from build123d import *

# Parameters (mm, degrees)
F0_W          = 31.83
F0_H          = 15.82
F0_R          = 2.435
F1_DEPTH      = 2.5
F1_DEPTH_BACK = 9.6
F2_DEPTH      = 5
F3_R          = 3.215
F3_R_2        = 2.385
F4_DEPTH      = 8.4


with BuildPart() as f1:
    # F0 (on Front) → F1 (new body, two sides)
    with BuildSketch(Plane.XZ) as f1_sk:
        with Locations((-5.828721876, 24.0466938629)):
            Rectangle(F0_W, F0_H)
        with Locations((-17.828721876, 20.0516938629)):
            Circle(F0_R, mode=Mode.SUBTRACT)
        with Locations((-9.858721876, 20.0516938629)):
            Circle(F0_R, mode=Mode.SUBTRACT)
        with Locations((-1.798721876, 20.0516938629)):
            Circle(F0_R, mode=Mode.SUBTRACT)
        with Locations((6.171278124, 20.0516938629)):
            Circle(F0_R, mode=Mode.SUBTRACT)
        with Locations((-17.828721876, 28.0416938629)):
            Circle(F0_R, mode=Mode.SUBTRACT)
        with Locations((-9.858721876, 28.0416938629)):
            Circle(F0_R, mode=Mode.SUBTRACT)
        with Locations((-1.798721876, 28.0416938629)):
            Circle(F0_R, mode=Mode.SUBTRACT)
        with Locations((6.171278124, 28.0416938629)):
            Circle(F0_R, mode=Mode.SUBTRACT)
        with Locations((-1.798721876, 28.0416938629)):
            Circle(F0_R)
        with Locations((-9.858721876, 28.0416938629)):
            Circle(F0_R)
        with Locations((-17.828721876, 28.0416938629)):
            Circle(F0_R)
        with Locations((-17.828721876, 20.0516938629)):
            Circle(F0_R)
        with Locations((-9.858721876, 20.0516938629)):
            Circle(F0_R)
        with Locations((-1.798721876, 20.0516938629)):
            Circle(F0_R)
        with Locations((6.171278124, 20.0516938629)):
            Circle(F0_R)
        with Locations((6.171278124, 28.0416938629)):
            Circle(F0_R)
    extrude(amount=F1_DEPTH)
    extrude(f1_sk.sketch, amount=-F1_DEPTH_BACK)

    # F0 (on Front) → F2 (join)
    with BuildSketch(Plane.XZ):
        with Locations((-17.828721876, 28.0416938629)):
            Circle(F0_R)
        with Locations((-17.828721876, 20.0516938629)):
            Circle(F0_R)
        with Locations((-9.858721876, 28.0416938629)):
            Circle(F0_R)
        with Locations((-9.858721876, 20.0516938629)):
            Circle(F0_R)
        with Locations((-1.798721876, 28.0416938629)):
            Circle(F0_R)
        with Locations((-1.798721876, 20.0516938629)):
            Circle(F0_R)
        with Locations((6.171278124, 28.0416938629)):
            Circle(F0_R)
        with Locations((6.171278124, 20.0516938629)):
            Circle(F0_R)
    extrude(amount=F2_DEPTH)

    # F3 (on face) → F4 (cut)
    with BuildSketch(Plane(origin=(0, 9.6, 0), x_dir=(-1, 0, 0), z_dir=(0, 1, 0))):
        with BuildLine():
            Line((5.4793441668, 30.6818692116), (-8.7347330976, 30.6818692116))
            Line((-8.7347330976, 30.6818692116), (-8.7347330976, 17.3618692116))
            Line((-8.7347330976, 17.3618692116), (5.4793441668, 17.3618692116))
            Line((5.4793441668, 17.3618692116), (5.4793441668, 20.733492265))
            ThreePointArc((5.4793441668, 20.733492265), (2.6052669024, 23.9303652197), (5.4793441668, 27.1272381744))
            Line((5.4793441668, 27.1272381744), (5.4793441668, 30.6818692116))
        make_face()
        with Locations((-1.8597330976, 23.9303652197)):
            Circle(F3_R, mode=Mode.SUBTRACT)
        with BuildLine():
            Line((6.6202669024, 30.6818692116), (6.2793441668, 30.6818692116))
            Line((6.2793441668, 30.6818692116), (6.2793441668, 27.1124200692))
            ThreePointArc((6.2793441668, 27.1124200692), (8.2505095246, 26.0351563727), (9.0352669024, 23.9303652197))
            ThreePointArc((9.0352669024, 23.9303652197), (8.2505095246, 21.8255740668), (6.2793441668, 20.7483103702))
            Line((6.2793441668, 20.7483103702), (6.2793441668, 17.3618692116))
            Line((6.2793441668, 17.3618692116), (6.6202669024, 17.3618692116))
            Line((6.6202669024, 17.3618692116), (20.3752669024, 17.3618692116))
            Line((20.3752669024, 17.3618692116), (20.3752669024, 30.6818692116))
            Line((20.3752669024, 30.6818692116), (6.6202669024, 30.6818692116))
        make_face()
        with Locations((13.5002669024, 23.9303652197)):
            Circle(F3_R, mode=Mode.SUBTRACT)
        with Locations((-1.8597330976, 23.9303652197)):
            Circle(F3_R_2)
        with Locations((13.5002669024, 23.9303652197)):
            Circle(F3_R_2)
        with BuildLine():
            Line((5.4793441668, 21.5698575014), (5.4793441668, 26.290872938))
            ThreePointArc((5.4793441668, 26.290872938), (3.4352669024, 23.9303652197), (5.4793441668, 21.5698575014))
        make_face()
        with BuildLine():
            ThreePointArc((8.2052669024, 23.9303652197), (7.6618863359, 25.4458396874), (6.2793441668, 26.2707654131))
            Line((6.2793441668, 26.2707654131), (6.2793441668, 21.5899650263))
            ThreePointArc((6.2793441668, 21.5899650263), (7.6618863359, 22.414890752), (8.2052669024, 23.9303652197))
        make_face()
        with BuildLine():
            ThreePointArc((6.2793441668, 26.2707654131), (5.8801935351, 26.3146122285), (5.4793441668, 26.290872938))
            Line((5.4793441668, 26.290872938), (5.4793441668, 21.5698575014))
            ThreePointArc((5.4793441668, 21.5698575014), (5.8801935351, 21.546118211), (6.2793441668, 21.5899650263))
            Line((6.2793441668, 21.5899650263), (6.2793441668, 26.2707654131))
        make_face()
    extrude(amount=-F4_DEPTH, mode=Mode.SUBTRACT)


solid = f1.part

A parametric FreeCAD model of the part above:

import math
import FreeCAD as App
import Part
import Sketcher
from FreeCAD import Vector

doc = App.newDocument("Part")
params = doc.addObject("Spreadsheet::Sheet", "Params")
for row, (alias, value) in enumerate([
    ("sketch1_width", "31.83 mm"),
    ("sketch1_height", "15.82 mm"),
    ("pad1_length", "2.5 mm"),
    ("pad1_length2", "9.6 mm"),
    ("sketch2_diameter", "4.87 mm"),
    ("pad2_length", "5 mm"),
    ("sketch3_diameter", "6.43 mm"),
    ("sketch3_diameter2", "4.77 mm"),
    ("sketch3_height", "13.32 mm"),
    ("pocket1_length", "8.4 mm"),
], start=1):
    params.set(f"A{row}", alias)
    params.set(f"B{row}", "=" + value)
    params.setAlias(f"B{row}", alias)

body = doc.addObject("PartDesign::Body", "Body")

sketch1 = doc.addObject("Sketcher::SketchObject", "Sketch")
body.addObject(sketch1)
sketch1.AttachmentSupport = (doc.XZ_Plane, [""])
sketch1.MapMode = "FlatFace"
sketch1.addGeometry([
    Part.LineSegment(Vector(-22, 32, 0), Vector(-22, 16, 0)),
    Part.LineSegment(Vector(-22, 16, 0), Vector(10, 16, 0)),
    Part.LineSegment(Vector(10, 16, 0), Vector(10, 32, 0)),
    Part.LineSegment(Vector(10, 32, 0), Vector(-22, 32, 0)),
], False)
sketch1.addConstraint([
    Sketcher.Constraint("Coincident", 0, 2, 1, 1),
    Sketcher.Constraint("Coincident", 1, 2, 2, 1),
    Sketcher.Constraint("Coincident", 2, 2, 3, 1),
    Sketcher.Constraint("Coincident", 3, 2, 0, 1),
    Sketcher.Constraint("Vertical", 0),
    Sketcher.Constraint("Horizontal", 1),
    Sketcher.Constraint("Vertical", 2),
    Sketcher.Constraint("Horizontal", 3),
    Sketcher.Constraint("DistanceX", 1, 1, 1, 2, 31.83),
    Sketcher.Constraint("DistanceY", 0, 2, 0, 1, 15.82),
    Sketcher.Constraint("DistanceX", 0, 2, -1, 1, 21.743722),
    Sketcher.Constraint("DistanceY", -1, 1, 0, 2, 16.136694),
])
sketch1.setExpression("Constraints[8]", "Params.sketch1_width")
sketch1.setExpression("Constraints[9]", "Params.sketch1_height")
pad1 = doc.addObject("PartDesign::Pad", "Pad")
body.addObject(pad1)
pad1.Profile = sketch1
pad1.Type = "TwoLengths"
pad1.setExpression("Length", "Params.pad1_length")
pad1.setExpression("Length2", "Params.pad1_length2")

sketch2 = doc.addObject("Sketcher::SketchObject", "Sketch001")
body.addObject(sketch2)
sketch2.AttachmentSupport = (doc.XZ_Plane, [""])
sketch2.MapMode = "FlatFace"
sketch2.addGeometry([
    Part.Circle(Vector(-17.8, 28, 0), Vector(0, 0, 1), 2.4),
    Part.Circle(Vector(-17.8, 20.1, 0), Vector(0, 0, 1), 2.4),
    Part.Circle(Vector(-9.9, 28, 0), Vector(0, 0, 1), 2.4),
    Part.Circle(Vector(-9.9, 20.1, 0), Vector(0, 0, 1), 2.4),
    Part.Circle(Vector(-1.8, 28, 0), Vector(0, 0, 1), 2.4),
    Part.Circle(Vector(-1.8, 20.1, 0), Vector(0, 0, 1), 2.4),
    Part.Circle(Vector(6.2, 28, 0), Vector(0, 0, 1), 2.4),
    Part.Circle(Vector(6.2, 20.1, 0), Vector(0, 0, 1), 2.4),
], False)
sketch2.addConstraint([
    Sketcher.Constraint("Equal", 0, 1),
    Sketcher.Constraint("Equal", 1, 2),
    Sketcher.Constraint("Equal", 2, 3),
    Sketcher.Constraint("Equal", 3, 4),
    Sketcher.Constraint("Equal", 4, 5),
    Sketcher.Constraint("Equal", 5, 6),
    Sketcher.Constraint("Equal", 6, 7),
    Sketcher.Constraint("Horizontal", 0, 3, 2, 3),
    Sketcher.Constraint("Horizontal", 1, 3, 3, 3),
    Sketcher.Constraint("Horizontal", 2, 3, 4, 3),
    Sketcher.Constraint("Horizontal", 3, 3, 5, 3),
    Sketcher.Constraint("Horizontal", 4, 3, 6, 3),
    Sketcher.Constraint("Horizontal", 5, 3, 7, 3),
    Sketcher.Constraint("Vertical", 0, 3, 1, 3),
    Sketcher.Constraint("Vertical", 2, 3, 3, 3),
    Sketcher.Constraint("Vertical", 4, 3, 5, 3),
    Sketcher.Constraint("Vertical", 6, 3, 7, 3),
    Sketcher.Constraint("Diameter", 0, 4.87),
    Sketcher.Constraint("DistanceX", 0, 3, 6, 3, 24.0),
    Sketcher.Constraint("DistanceY", 1, 3, 0, 3, 7.99),
    Sketcher.Constraint("DistanceX", 0, 3, 2, 3, 7.97),
    Sketcher.Constraint("DistanceX", 2, 3, 4, 3, 8.06),
    Sketcher.Constraint("DistanceX", 0, 3, -1, 1, 17.828722),
    Sketcher.Constraint("DistanceY", -1, 1, 0, 3, 28.041694),
])
sketch2.setExpression("Constraints[17]", "Params.sketch2_diameter")
pad2 = doc.addObject("PartDesign::Pad", "Pad001")
body.addObject(pad2)
pad2.Profile = sketch2
pad2.setExpression("Length", "Params.pad2_length")

sketch3 = doc.addObject("Sketcher::SketchObject", "Sketch002")
body.addObject(sketch3)
sketch3.AttachmentSupport = (doc.XZ_Plane, [""])
sketch3.MapMode = "FlatFace"
sketch3.AttachmentOffset = App.Placement(Vector(0, 0, -9.6), App.Rotation())
sketch3.addGeometry([
    Part.LineSegment(Vector(-5.5, 30.7, 0), Vector(8.7, 30.7, 0)),
    Part.LineSegment(Vector(8.7, 30.7, 0), Vector(8.7, 17.4, 0)),
    Part.LineSegment(Vector(8.7, 17.4, 0), Vector(-5.5, 17.4, 0)),
    Part.LineSegment(Vector(-5.5, 17.4, 0), Vector(-5.5, 20.7, 0)),
    Part.ArcOfCircle(Part.Circle(Vector(-5.8, 23.9, 0), Vector(0, 0, 1), 3.2), math.radians(-84), math.radians(84)),
    Part.LineSegment(Vector(-5.5, 27.1, 0), Vector(-5.5, 30.7, 0)),
    Part.Circle(Vector(1.9, 23.9, 0), Vector(0, 0, 1), 3.2),
    Part.LineSegment(Vector(-6.3, 30.7, 0), Vector(-6.3, 27.1, 0)),
    Part.ArcOfCircle(Part.Circle(Vector(-5.8, 23.9, 0), Vector(0, 0, 1), 3.2), math.radians(98), math.radians(180)),
    Part.ArcOfCircle(Part.Circle(Vector(-5.8, 23.9, 0), Vector(0, 0, 1), 3.2), math.radians(180), math.radians(262)),
    Part.LineSegment(Vector(-6.3, 20.7, 0), Vector(-6.3, 17.4, 0)),
    Part.LineSegment(Vector(-6.3, 17.4, 0), Vector(-20.4, 17.4, 0)),
    Part.LineSegment(Vector(-20.4, 17.4, 0), Vector(-20.4, 30.7, 0)),
    Part.LineSegment(Vector(-20.4, 30.7, 0), Vector(-6.3, 30.7, 0)),
    Part.Circle(Vector(-13.5, 23.9, 0), Vector(0, 0, 1), 3.2),
    Part.Circle(Vector(1.9, 23.9, 0), Vector(0, 0, 1), 2.4),
    Part.Circle(Vector(-13.5, 23.9, 0), Vector(0, 0, 1), 2.4),
    Part.ArcOfCircle(Part.Circle(Vector(-5.8, 23.9, 0), Vector(0, 0, 1), 2.4), math.radians(-82), math.radians(82)),
    Part.ArcOfCircle(Part.Circle(Vector(-5.8, 23.9, 0), Vector(0, 0, 1), 2.4), math.radians(-101.1), math.radians(-81.78)),
    Part.ArcOfCircle(Part.Circle(Vector(-5.8, 23.9, 0), Vector(0, 0, 1), 2.4), math.radians(180), math.radians(259)),
    Part.ArcOfCircle(Part.Circle(Vector(-5.8, 23.9, 0), Vector(0, 0, 1), 2.4), math.radians(101), math.radians(180)),
    Part.ArcOfCircle(Part.Circle(Vector(-5.8, 23.9, 0), Vector(0, 0, 1), 2.4), math.radians(81.78), math.radians(101.1)),
], False)
sketch3.addConstraint([
    Sketcher.Constraint("Coincident", 0, 2, 1, 1),
    Sketcher.Constraint("Coincident", 1, 2, 2, 1),
    Sketcher.Constraint("Coincident", 2, 2, 3, 1),
    Sketcher.Constraint("Coincident", 3, 2, 4, 1),
    Sketcher.Constraint("Coincident", 4, 2, 5, 1),
    Sketcher.Constraint("Coincident", 5, 2, 0, 1),
    Sketcher.Constraint("Coincident", 7, 2, 8, 1),
    Sketcher.Constraint("Tangent", 8, 2, 9, 1),
    Sketcher.Constraint("Coincident", 9, 2, 10, 1),
    Sketcher.Constraint("Coincident", 10, 2, 11, 1),
    Sketcher.Constraint("Coincident", 11, 2, 12, 1),
    Sketcher.Constraint("Coincident", 12, 2, 13, 1),
    Sketcher.Constraint("Coincident", 13, 2, 7, 1),
    Sketcher.Constraint("Tangent", 17, 1, 18, 2),
    Sketcher.Constraint("Tangent", 18, 1, 19, 2),
    Sketcher.Constraint("Tangent", 19, 1, 20, 2),
    Sketcher.Constraint("Tangent", 20, 1, 21, 2),
    Sketcher.Constraint("Tangent", 21, 1, 17, 2),
    Sketcher.Constraint("Horizontal", 0),
    Sketcher.Constraint("Vertical", 1),
    Sketcher.Constraint("Horizontal", 2),
    Sketcher.Constraint("Vertical", 3),
    Sketcher.Constraint("Vertical", 5),
    Sketcher.Constraint("Vertical", 7),
    Sketcher.Constraint("Vertical", 10),
    Sketcher.Constraint("Horizontal", 11),
    Sketcher.Constraint("Vertical", 12),
    Sketcher.Constraint("Horizontal", 13),
    Sketcher.Constraint("Coincident", 8, 3, 4, 3),
    Sketcher.Constraint("Coincident", 15, 3, 6, 3),
    Sketcher.Constraint("Coincident", 16, 3, 14, 3),
    Sketcher.Constraint("Coincident", 17, 3, 4, 3),
    Sketcher.Constraint("Coincident", 19, 3, 4, 3),
    Sketcher.Constraint("Equal", 4, 6),
    Sketcher.Constraint("Equal", 6, 8),
    Sketcher.Constraint("Equal", 8, 9),
    Sketcher.Constraint("Equal", 9, 14),
    Sketcher.Constraint("Equal", 15, 16),
    Sketcher.Constraint("Equal", 16, 17),
    Sketcher.Constraint("Horizontal", 4, 3, 6, 3),
    Sketcher.Constraint("Horizontal", 9, 3, 14, 3),
    Sketcher.Constraint("Horizontal", 21, 3, 8, 2),
    Sketcher.Constraint("Horizontal", 2, 2, 10, 2),
    Sketcher.Constraint("Horizontal", 5, 2, 12, 2),
    Sketcher.Constraint("Horizontal", 8, 2, 19, 1),
    Sketcher.Constraint("Vertical", 3, 2, 4, 2),
    Sketcher.Constraint("Vertical", 7, 2, 9, 2),
    Sketcher.Constraint("Vertical", 5, 2, 17, 1),
    Sketcher.Constraint("Vertical", 13, 2, 18, 1),
    Sketcher.Constraint("Vertical", 18, 1, 20, 1),
    Sketcher.Constraint("Vertical", 17, 1, 21, 1),
    Sketcher.Constraint("Diameter", 6, 6.43),
    Sketcher.Constraint("Diameter", 15, 4.77),
    Sketcher.Constraint("DistanceY", 1, 2, 1, 1, 13.32),
    Sketcher.Constraint("DistanceX", 7, 2, 4, 2, 0.8),
    Sketcher.Constraint("DistanceX", 4, 3, 6, 3, 7.68),
    Sketcher.Constraint("DistanceX", 14, 3, 8, 3, 7.68),
    Sketcher.Constraint("DistanceX", 11, 2, 8, 2, 11.34),
    Sketcher.Constraint("DistanceX", 6, 3, 0, 2, 6.875),
    Sketcher.Constraint("DistanceY", 5, 1, 5, 2, 3.554631),
    Sketcher.Constraint("DistanceY", 7, 2, 7, 1, 3.569449),
    Sketcher.Constraint("DistanceY", -1, 1, 0, 2, 30.681869),
    Sketcher.Constraint("DistanceX", 4, 3, -1, 1, 5.820267),
])
sketch3.setExpression("Constraints[51]", "Params.sketch3_diameter")
sketch3.setExpression("Constraints[52]", "Params.sketch3_diameter2")
sketch3.setExpression("Constraints[53]", "Params.sketch3_height")
pocket1 = doc.addObject("PartDesign::Pocket", "Pocket")
body.addObject(pocket1)
pocket1.Profile = sketch3
pocket1.setExpression("Length", "Params.pocket1_length")
pocket1.Reversed = True

doc.recompute()
